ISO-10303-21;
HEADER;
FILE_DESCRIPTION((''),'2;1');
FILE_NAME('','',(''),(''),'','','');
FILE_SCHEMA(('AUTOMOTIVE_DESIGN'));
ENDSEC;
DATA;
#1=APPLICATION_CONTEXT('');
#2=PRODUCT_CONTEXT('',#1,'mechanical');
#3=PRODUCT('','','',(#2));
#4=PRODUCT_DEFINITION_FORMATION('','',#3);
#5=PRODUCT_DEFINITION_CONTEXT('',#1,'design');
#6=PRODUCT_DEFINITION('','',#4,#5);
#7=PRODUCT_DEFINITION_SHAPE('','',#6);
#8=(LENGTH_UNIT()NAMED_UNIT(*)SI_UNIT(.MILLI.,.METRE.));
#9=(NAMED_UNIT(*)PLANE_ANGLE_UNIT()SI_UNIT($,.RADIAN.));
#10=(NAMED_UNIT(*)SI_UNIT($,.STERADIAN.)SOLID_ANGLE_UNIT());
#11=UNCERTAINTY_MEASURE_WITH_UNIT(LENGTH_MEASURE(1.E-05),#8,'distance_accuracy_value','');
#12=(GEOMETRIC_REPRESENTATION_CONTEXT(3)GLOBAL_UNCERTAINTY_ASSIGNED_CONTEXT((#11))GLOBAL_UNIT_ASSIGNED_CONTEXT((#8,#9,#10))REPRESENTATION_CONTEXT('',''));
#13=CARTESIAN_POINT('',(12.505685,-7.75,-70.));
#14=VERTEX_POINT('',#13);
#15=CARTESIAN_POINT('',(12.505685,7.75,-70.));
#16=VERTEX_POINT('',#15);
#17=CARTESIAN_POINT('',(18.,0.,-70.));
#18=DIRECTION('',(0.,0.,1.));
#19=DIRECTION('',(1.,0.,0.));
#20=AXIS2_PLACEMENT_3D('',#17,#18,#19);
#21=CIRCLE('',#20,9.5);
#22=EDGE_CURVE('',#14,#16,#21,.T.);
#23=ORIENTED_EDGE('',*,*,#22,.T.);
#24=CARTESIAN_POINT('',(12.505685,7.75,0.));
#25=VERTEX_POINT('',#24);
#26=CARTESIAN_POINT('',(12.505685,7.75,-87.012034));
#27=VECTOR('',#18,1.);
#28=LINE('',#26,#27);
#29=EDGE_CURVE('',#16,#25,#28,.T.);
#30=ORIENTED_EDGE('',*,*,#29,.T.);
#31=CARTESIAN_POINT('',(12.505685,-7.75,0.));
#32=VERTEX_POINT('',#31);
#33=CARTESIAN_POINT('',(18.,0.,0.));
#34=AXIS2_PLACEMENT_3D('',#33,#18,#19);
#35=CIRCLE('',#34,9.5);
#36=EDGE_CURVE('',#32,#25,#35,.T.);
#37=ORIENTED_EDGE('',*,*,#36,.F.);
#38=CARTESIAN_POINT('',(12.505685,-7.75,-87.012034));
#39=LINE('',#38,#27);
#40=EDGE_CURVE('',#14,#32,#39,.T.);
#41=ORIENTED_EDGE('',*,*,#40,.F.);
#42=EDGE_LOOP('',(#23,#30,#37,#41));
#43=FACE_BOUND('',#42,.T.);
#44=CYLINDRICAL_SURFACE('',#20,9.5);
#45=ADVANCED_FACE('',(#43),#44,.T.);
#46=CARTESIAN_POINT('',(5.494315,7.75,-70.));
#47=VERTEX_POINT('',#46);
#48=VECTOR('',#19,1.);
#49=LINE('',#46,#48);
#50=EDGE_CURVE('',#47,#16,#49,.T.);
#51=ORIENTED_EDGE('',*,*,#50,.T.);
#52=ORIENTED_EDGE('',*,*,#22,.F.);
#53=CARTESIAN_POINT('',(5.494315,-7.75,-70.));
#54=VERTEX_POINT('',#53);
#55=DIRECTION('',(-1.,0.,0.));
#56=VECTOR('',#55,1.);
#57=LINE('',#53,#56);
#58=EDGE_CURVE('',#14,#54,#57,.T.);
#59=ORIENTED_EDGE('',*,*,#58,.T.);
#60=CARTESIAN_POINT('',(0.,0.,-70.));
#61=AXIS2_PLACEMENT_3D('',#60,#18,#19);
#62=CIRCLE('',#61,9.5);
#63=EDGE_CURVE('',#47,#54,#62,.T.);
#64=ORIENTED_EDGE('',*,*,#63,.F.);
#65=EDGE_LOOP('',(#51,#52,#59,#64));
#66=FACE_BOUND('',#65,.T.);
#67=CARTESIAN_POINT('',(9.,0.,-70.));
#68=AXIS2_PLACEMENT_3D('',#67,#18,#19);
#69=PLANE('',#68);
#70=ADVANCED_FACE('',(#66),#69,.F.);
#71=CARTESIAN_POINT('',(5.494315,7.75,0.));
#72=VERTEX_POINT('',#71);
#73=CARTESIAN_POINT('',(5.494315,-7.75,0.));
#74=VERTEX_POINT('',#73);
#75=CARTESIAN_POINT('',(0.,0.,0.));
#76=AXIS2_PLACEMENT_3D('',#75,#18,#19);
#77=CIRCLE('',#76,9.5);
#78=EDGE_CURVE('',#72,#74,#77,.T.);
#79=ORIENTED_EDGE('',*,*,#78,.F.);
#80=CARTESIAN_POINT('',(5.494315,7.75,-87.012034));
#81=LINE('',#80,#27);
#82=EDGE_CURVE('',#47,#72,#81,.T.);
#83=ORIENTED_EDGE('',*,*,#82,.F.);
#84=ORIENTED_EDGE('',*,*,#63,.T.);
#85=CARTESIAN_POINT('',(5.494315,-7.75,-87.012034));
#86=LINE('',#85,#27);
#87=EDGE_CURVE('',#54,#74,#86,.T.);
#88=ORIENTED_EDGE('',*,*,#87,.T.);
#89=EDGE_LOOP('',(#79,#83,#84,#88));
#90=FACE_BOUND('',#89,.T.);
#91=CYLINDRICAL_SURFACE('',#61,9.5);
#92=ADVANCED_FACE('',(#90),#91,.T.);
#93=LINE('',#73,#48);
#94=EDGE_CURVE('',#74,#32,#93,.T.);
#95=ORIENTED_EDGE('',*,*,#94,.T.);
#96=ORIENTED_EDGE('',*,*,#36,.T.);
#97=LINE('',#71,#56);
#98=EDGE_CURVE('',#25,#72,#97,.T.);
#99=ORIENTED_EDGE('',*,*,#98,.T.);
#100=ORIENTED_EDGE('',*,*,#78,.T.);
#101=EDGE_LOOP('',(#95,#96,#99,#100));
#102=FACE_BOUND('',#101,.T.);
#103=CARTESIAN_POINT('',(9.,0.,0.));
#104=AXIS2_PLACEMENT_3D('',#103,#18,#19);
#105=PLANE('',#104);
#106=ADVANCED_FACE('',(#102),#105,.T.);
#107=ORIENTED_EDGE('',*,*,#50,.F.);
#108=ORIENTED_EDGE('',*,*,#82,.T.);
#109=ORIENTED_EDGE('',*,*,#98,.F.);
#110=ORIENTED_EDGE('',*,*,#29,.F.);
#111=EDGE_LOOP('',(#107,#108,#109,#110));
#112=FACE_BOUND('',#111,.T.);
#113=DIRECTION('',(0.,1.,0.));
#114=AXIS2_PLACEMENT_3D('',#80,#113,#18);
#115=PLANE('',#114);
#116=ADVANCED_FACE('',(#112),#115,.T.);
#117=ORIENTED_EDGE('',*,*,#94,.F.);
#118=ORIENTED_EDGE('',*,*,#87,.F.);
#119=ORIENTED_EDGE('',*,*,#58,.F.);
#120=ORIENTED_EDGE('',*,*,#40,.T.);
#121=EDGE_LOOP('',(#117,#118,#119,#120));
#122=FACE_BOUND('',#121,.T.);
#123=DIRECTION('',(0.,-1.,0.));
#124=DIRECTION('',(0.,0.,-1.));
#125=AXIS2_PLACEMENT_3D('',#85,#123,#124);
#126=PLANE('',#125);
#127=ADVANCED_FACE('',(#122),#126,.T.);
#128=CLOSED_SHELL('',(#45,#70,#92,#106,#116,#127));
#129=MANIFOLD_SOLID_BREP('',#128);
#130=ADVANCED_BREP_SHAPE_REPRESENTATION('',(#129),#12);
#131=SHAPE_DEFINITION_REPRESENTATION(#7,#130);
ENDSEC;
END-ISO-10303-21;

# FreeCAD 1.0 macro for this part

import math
import FreeCAD as App
import Part
import Sketcher
Q = App.Units.Quantity

doc = App.newDocument("Part")
body = doc.addObject("PartDesign::Body", "Body")

sketch1 = body.newObject("Sketcher::SketchObject", "Sketch")
sketch1.AttachmentSupport = (doc.getObject("XY_Plane"), [""])
sketch1.MapMode = "FlatFace"
sketch1.addGeometry([
    Part.ArcOfCircle(Part.Circle(App.Vector(0, 0, 0), App.Vector(0, 0, 1), 10), math.radians(19), math.radians(341)),
    Part.ArcOfCircle(Part.Circle(App.Vector(18, 0, 0), App.Vector(0, 0, 1), 10), math.radians(-161), math.radians(161)),
], False)
sketch1.addConstraint([
    Sketcher.Constraint("Coincident", 0, 1, 1, 2),
    Sketcher.Constraint("Coincident", 1, 1, 0, 2),
    Sketcher.Constraint("Coincident", 0, 3, -1, 1),
    Sketcher.Constraint("Equal", 0, 1),
    Sketcher.Constraint("PointOnObject", 1, 3, -1),
    Sketcher.Constraint("Radius", 0, Q("9.5 mm")),
    Sketcher.Constraint("DistanceX", -1, 1, 1, 3, Q("18 mm")),
])
pad1 = body.newObject("PartDesign::Pad", "Pad")
pad1.Profile = sketch1
pad1.Length = 70
pad1.Reversed = True

sketch2 = body.newObject("Sketcher::SketchObject", "Sketch001")
sketch2.AttachmentSupport = (doc.getObject("XY_Plane"), [""])
sketch2.MapMode = "FlatFace"
sketch2.addGeometry([
    Part.LineSegment(App.Vector(5, 8, 0), App.Vector(5, -8, 0)),
    Part.LineSegment(App.Vector(5, -8, 0), App.Vector(13, -8, 0)),
    Part.LineSegment(App.Vector(13, -8, 0), App.Vector(13, 8, 0)),
    Part.LineSegment(App.Vector(13, 8, 0), App.Vector(5, 8, 0)),
], False)
sketch2.addConstraint([
    Sketcher.Constraint("Coincident", 0, 2, 1, 1),
    Sketcher.Constraint("Coincident", 1, 2, 2, 1),
    Sketcher.Constraint("Coincident", 2, 2, 3, 1),
    Sketcher.Constraint("Coincident", 3, 2, 0, 1),
    Sketcher.Constraint("Vertical", 0),
    Sketcher.Constraint("Horizontal", 1),
    Sketcher.Constraint("Vertical", 2),
    Sketcher.Constraint("Horizontal", 3),
    Sketcher.Constraint("DistanceY", 0, 2, 0, 1, Q("15.5 mm")),
    Sketcher.Constraint("DistanceY", 0, 2, -1, 1, Q("7.75 mm")),
    Sketcher.Constraint("DistanceX", 1, 1, 1, 2, Q("7.01137 mm")),
    Sketcher.Constraint("DistanceX", -1, 1, 0, 2, Q("5.494315 mm")),
])
pad2 = body.newObject("PartDesign::Pad", "Pad001")
pad2.Profile = sketch2
pad2.Length = 70
pad2.Reversed = True

doc.recompute()
